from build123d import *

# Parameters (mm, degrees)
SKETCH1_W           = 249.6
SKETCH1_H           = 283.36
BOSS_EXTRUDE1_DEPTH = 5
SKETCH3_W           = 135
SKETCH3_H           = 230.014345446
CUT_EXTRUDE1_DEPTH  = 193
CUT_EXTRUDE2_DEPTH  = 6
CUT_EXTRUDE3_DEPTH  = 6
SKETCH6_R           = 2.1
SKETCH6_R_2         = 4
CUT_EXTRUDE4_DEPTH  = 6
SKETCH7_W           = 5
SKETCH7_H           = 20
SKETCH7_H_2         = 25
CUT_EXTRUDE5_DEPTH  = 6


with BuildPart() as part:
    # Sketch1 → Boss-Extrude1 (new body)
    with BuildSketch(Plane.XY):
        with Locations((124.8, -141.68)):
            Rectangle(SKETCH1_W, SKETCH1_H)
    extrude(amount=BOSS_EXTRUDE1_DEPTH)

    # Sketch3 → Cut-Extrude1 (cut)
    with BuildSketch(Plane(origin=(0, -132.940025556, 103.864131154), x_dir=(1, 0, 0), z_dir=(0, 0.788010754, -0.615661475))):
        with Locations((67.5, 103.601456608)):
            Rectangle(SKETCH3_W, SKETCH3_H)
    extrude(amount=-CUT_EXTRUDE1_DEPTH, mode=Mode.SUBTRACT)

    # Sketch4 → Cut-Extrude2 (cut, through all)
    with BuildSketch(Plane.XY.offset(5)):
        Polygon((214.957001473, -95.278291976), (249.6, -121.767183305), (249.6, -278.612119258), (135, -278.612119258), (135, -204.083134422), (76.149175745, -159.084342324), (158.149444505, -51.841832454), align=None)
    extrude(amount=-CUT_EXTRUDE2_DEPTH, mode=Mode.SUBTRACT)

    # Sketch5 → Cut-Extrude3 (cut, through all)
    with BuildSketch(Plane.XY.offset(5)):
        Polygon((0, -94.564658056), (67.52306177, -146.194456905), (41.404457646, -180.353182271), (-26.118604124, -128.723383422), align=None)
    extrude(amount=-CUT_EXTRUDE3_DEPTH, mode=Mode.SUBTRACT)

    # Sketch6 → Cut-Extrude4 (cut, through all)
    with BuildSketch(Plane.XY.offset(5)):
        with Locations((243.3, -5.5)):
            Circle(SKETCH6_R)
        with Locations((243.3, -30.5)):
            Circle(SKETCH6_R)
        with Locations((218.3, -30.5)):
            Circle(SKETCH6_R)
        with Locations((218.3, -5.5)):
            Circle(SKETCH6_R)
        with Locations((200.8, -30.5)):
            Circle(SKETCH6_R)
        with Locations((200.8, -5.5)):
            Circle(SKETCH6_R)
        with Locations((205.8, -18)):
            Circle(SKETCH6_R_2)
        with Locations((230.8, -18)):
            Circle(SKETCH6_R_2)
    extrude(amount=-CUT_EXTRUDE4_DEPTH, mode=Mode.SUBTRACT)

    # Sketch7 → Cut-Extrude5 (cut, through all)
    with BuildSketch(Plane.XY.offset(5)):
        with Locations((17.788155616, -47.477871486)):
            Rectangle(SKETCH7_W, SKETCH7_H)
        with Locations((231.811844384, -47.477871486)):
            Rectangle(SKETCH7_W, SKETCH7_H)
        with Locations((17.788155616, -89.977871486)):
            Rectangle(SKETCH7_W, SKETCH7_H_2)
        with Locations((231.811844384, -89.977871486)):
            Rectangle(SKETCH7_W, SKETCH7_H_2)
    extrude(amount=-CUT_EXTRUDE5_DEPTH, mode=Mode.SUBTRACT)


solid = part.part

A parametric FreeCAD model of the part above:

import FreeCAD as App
import Part
import Sketcher
from FreeCAD import Vector

doc = App.newDocument("Part")
body = doc.addObject("PartDesign::Body", "Body")
body.AllowCompound = True

sketch1 = body.newObject("Sketcher::SketchObject", "Sketch")
sketch1.AttachmentSupport = (doc.getObject("XY_Plane"), [""])
sketch1.MapMode = "FlatFace"
sketch1.addGeometry(Part.LineSegment(Vector(0, 0, 0), Vector(0, -283, 0)), False)
sketch1.addGeometry(Part.LineSegment(Vector(0, -283, 0), Vector(250, -283, 0)), False)
sketch1.addGeometry(Part.LineSegment(Vector(250, -283, 0), Vector(250, 0, 0)), False)
sketch1.addGeometry(Part.LineSegment(Vector(250, 0, 0), Vector(0, 0, 0)), False)
sketch1.addConstraint(Sketcher.Constraint("Coincident", 0, 2, 1, 1))
sketch1.addConstraint(Sketcher.Constraint("Coincident", 1, 2, 2, 1))
sketch1.addConstraint(Sketcher.Constraint("Coincident", 2, 2, 3, 1))
sketch1.addConstraint(Sketcher.Constraint("Coincident", 3, 2, 0, 1))
sketch1.addConstraint(Sketcher.Constraint("Vertical", 0))
sketch1.addConstraint(Sketcher.Constraint("Horizontal", 1))
sketch1.addConstraint(Sketcher.Constraint("Vertical", 2))
sketch1.addConstraint(Sketcher.Constraint("Horizontal", 3))
sketch1.addConstraint(Sketcher.Constraint("Coincident", 3, 2, -1, 1))
sketch1.addConstraint(Sketcher.Constraint("DistanceX", 1, 1, 1, 2, 249.6))
sketch1.addConstraint(Sketcher.Constraint("DistanceY", 0, 2, 0, 1, 283.36))
pad1 = body.newObject("PartDesign::Pad", "Pad")
pad1.Profile = sketch1
pad1.Length = 5

sketch2 = body.newObject("Sketcher::SketchObject", "Sketch001")
sketch2.Placement = App.Placement(Vector(0, -132.940026, 103.864131), App.Rotation(Vector(1, 0, 0), Vector(0, -0.615661475, -0.788010754), Vector(0, 0.788010754, -0.615661475), "ZXY"))
sketch2.addGeometry(Part.LineSegment(Vector(0, 219, 0), Vector(0, -11, 0)), False)
sketch2.addGeometry(Part.LineSegment(Vector(0, -11, 0), Vector(135, -11, 0)), False)
sketch2.addGeometry(Part.LineSegment(Vector(135, -11, 0), Vector(135, 219, 0)), False)
sketch2.addGeometry(Part.LineSegment(Vector(135, 219, 0), Vector(0, 219, 0)), False)
sketch2.addConstraint(Sketcher.Constraint("Coincident", 0, 2, 1, 1))
sketch2.addConstraint(Sketcher.Constraint("Coincident", 1, 2, 2, 1))
sketch2.addConstraint(Sketcher.Constraint("Coincident", 2, 2, 3, 1))
sketch2.addConstraint(Sketcher.Constraint("Coincident", 3, 2, 0, 1))
sketch2.addConstraint(Sketcher.Constraint("Vertical", 0))
sketch2.addConstraint(Sketcher.Constraint("Horizontal", 1))
sketch2.addConstraint(Sketcher.Constraint("Vertical", 2))
sketch2.addConstraint(Sketcher.Constraint("Horizontal", 3))
sketch2.addConstraint(Sketcher.Constraint("PointOnObject", 0, 2, -2))
sketch2.addConstraint(Sketcher.Constraint("DistanceX", 1, 1, 1, 2, 135.0))
sketch2.addConstraint(Sketcher.Constraint("DistanceY", 0, 2, 0, 1, 230.014345))
sketch2.addConstraint(Sketcher.Constraint("DistanceY", -1, 1, 2, 2, 218.608629))
pocket1 = body.newObject("PartDesign::Pocket", "Pocket")
pocket1.Profile = sketch2
pocket1.Length = 193

sketch3 = body.newObject("Sketcher::SketchObject", "Sketch002")
sketch3.AttachmentSupport = (doc.getObject("XY_Plane"), [""])
sketch3.MapMode = "FlatFace"
sketch3.AttachmentOffset = App.Placement(Vector(0, 0, 5), App.Rotation())
sketch3.addGeometry(Part.LineSegment(Vector(250, -122, 0), Vector(215, -95, 0)), False)
sketch3.addGeometry(Part.LineSegment(Vector(215, -95, 0), Vector(158, -52, 0)), False)
sketch3.addGeometry(Part.LineSegment(Vector(158, -52, 0), Vector(76, -159, 0)), False)
sketch3.addGeometry(Part.LineSegment(Vector(76, -159, 0), Vector(135, -204, 0)), False)
sketch3.addGeometry(Part.LineSegment(Vector(135, -204, 0), Vector(135, -279, 0)), False)
sketch3.addGeometry(Part.LineSegment(Vector(135, -279, 0), Vector(250, -279, 0)), False)
sketch3.addGeometry(Part.LineSegment(Vector(250, -279, 0), Vector(250, -122, 0)), False)
sketch3.addConstraint(Sketcher.Constraint("Coincident", 0, 2, 1, 1))
sketch3.addConstraint(Sketcher.Constraint("Coincident", 1, 2, 2, 1))
sketch3.addConstraint(Sketcher.Constraint("Coincident", 2, 2, 3, 1))
sketch3.addConstraint(Sketcher.Constraint("Coincident", 3, 2, 4, 1))
sketch3.addConstraint(Sketcher.Constraint("Coincident", 4, 2, 5, 1))
sketch3.addConstraint(Sketcher.Constraint("Coincident", 5, 2, 6, 1))
sketch3.addConstraint(Sketcher.Constraint("Coincident", 6, 2, 0, 1))
sketch3.addConstraint(Sketcher.Constraint("Vertical", 4))
sketch3.addConstraint(Sketcher.Constraint("Horizontal", 5))
sketch3.addConstraint(Sketcher.Constraint("Vertical", 6))
sketch3.addConstraint(Sketcher.Constraint("Parallel", 0, 1))
sketch3.addConstraint(Sketcher.Constraint("Perpendicular", 1, 2))
sketch3.addConstraint(Sketcher.Constraint("Perpendicular", 2, 3))
sketch3.addConstraint(Sketcher.Constraint("Distance", 2, 135.0))
sketch3.addConstraint(Sketcher.Constraint("DistanceX", 5, 1, 5, 2, 114.6))
sketch3.addConstraint(Sketcher.Constraint("DistanceX", -1, 1, 3, 2, 135.0))
sketch3.addConstraint(Sketcher.Constraint("DistanceX", -1, 1, 0, 2, 214.957001))
sketch3.addConstraint(Sketcher.Constraint("DistanceY", 3, 2, 1, 2, 152.241302))
sketch3.addConstraint(Sketcher.Constraint("Distance", 1, 71.51101))
sketch3.addConstraint(Sketcher.Constraint("DistanceY", 4, 2, 4, 1, 74.528985))
sketch3.addConstraint(Sketcher.Constraint("DistanceY", 0, 2, -1, 1, 95.278292))
pocket2 = body.newObject("PartDesign::Pocket", "Pocket001")
pocket2.Profile = sketch3
pocket2.Type = "ThroughAll"

sketch4 = body.newObject("Sketcher::SketchObject", "Sketch003")
sketch4.AttachmentSupport = (doc.getObject("XY_Plane"), [""])
sketch4.MapMode = "FlatFace"
sketch4.AttachmentOffset = App.Placement(Vector(0, 0, 5), App.Rotation())
sketch4.addGeometry(Part.LineSegment(Vector(68, -146, 0), Vector(0, -95, 0)), False)
sketch4.addGeometry(Part.LineSegment(Vector(0, -95, 0), Vector(-26, -129, 0)), False)
sketch4.addGeometry(Part.LineSegment(Vector(-26, -129, 0), Vector(41, -180, 0)), False)
sketch4.addGeometry(Part.LineSegment(Vector(41, -180, 0), Vector(68, -146, 0)), False)
sketch4.addConstraint(Sketcher.Constraint("Coincident", 0, 2, 1, 1))
sketch4.addConstraint(Sketcher.Constraint("Coincident", 1, 2, 2, 1))
sketch4.addConstraint(Sketcher.Constraint("Coincident", 2, 2, 3, 1))
sketch4.addConstraint(Sketcher.Constraint("Coincident", 3, 2, 0, 1))
sketch4.addConstraint(Sketcher.Constraint("PointOnObject", 0, 2, -2))
sketch4.addConstraint(Sketcher.Constraint("Perpendicular", 0, 1))
sketch4.addConstraint(Sketcher.Constraint("Perpendicular", 1, 2))
sketch4.addConstraint(Sketcher.Constraint("Perpendicular", 2, 3))
sketch4.addConstraint(Sketcher.Constraint("Distance", 0, 85.0))
sketch4.addConstraint(Sketcher.Constraint("Distance", 1, 43.0))
sketch4.addConstraint(Sketcher.Constraint("DistanceY", 2, 2, 1, 2, 51.629799))
sketch4.addConstraint(Sketcher.Constraint("DistanceY", 0, 2, -1, 1, 94.564658))
pocket3 = body.newObject("PartDesign::Pocket", "Pocket002")
pocket3.Profile = sketch4
pocket3.Type = "ThroughAll"

sketch5 = body.newObject("Sketcher::SketchObject", "Sketch004")
sketch5.AttachmentSupport = (doc.getObject("XY_Plane"), [""])
sketch5.MapMode = "FlatFace"
sketch5.AttachmentOffset = App.Placement(Vector(0, 0, 5), App.Rotation())
sketch5.addGeometry(Part.Circle(Vector(243.3, -5.5, 0), Vector(0, 0, 1), 2.1), False)
sketch5.addGeometry(Part.Circle(Vector(243.3, -30.5, 0), Vector(0, 0, 1), 2.1), False)
sketch5.addGeometry(Part.Circle(Vector(218.3, -30.5, 0), Vector(0, 0, 1), 2.1), False)
sketch5.addGeometry(Part.Circle(Vector(218.3, -5.5, 0), Vector(0, 0, 1), 2.1), False)
sketch5.addGeometry(Part.Circle(Vector(200.8, -30.5, 0), Vector(0, 0, 1), 2.1), False)
sketch5.addGeometry(Part.Circle(Vector(200.8, -5.5, 0), Vector(0, 0, 1), 2.1), False)
sketch5.addGeometry(Part.Circle(Vector(205.8, -18, 0), Vector(0, 0, 1), 4), False)
sketch5.addGeometry(Part.Circle(Vector(230.8, -18, 0), Vector(0, 0, 1), 4), False)
sketch5.addConstraint(Sketcher.Constraint("Equal", 0, 1))
sketch5.addConstraint(Sketcher.Constraint("Equal", 1, 2))
sketch5.addConstraint(Sketcher.Constraint("Equal", 2, 3))
sketch5.addConstraint(Sketcher.Constraint("Equal", 3, 4))
sketch5.addConstraint(Sketcher.Constraint("Equal", 4, 5))
sketch5.addConstraint(Sketcher.Constraint("Equal", 6, 7))
sketch5.addConstraint(Sketcher.Constraint("Horizontal", 1, 3, 2, 3))
sketch5.addConstraint(Sketcher.Constraint("Horizontal", 0, 3, 3, 3))
sketch5.addConstraint(Sketcher.Constraint("Horizontal", 2, 3, 4, 3))
sketch5.addConstraint(Sketcher.Constraint("Horizontal", 3, 3, 5, 3))
sketch5.addConstraint(Sketcher.Constraint("Horizontal", 6, 3, 7, 3))
sketch5.addConstraint(Sketcher.Constraint("Vertical", 0, 3, 1, 3))
sketch5.addConstraint(Sketcher.Constraint("Vertical", 2, 3, 3, 3))
sketch5.addConstraint(Sketcher.Constraint("Vertical", 4, 3, 5, 3))
sketch5.addConstraint(Sketcher.Constraint("Diameter", 6, 8.0))
sketch5.addConstraint(Sketcher.Constraint("Diameter", 0, 4.2))
sketch5.addConstraint(Sketcher.Constraint("DistanceY", 6, 3, -1, 1, 18.0))
sketch5.addConstraint(Sketcher.Constraint("DistanceY", 1, 3, 0, 3, 25.0))
sketch5.addConstraint(Sketcher.Constraint("DistanceX", 2, 3, 1, 3, 25.0))
sketch5.addConstraint(Sketcher.Constraint("DistanceX", 4, 3, 6, 3, 5.0))
sketch5.addConstraint(Sketcher.Constraint("DistanceX", 6, 3, 7, 3, 25.0))
sketch5.addConstraint(Sketcher.Constraint("DistanceX", -1, 1, 0, 3, 243.3))
sketch5.addConstraint(Sketcher.Constraint("DistanceY", 0, 3, -1, 1, 5.5))
sketch5.addConstraint(Sketcher.Constraint("DistanceX", -1, 1, 4, 3, 200.8))
pocket4 = body.newObject("PartDesign::Pocket", "Pocket003")
pocket4.Profile = sketch5
pocket4.Type = "ThroughAll"

sketch6 = body.newObject("Sketcher::SketchObject", "Sketch005")
sketch6.AttachmentSupport = (doc.getObject("XY_Plane"), [""])
sketch6.MapMode = "FlatFace"
sketch6.AttachmentOffset = App.Placement(Vector(0, 0, 5), App.Rotation())
sketch6.addGeometry(Part.LineSegment(Vector(15, -37, 0), Vector(15, -57, 0)), False)
sketch6.addGeometry(Part.LineSegment(Vector(15, -57, 0), Vector(20, -57, 0)), False)
sketch6.addGeometry(Part.LineSegment(Vector(20, -57, 0), Vector(20, -37, 0)), False)
sketch6.addGeometry(Part.LineSegment(Vector(20, -37, 0), Vector(15, -37, 0)), False)
sketch6.addGeometry(Part.LineSegment(Vector(229, -37, 0), Vector(229, -57, 0)), False)
sketch6.addGeometry(Part.LineSegment(Vector(229, -57, 0), Vector(234, -57, 0)), False)
sketch6.addGeometry(Part.LineSegment(Vector(234, -57, 0), Vector(234, -37, 0)), False)
sketch6.addGeometry(Part.LineSegment(Vector(234, -37, 0), Vector(229, -37, 0)), False)
sketch6.addGeometry(Part.LineSegment(Vector(15, -77, 0), Vector(15, -102, 0)), False)
sketch6.addGeometry(Part.LineSegment(Vector(15, -102, 0), Vector(20, -102, 0)), False)
sketch6.addGeometry(Part.LineSegment(Vector(20, -102, 0), Vector(20, -77, 0)), False)
sketch6.addGeometry(Part.LineSegment(Vector(20, -77, 0), Vector(15, -77, 0)), False)
sketch6.addGeometry(Part.LineSegment(Vector(229, -77, 0), Vector(229, -102, 0)), False)
sketch6.addGeometry(Part.LineSegment(Vector(229, -102, 0), Vector(234, -102, 0)), False)
sketch6.addGeometry(Part.LineSegment(Vector(234, -102, 0), Vector(234, -77, 0)), False)
sketch6.addGeometry(Part.LineSegment(Vector(234, -77, 0), Vector(229, -77, 0)), False)
sketch6.addConstraint(Sketcher.Constraint("Coincident", 0, 2, 1, 1))
sketch6.addConstraint(Sketcher.Constraint("Coincident", 1, 2, 2, 1))
sketch6.addConstraint(Sketcher.Constraint("Coincident", 2, 2, 3, 1))
sketch6.addConstraint(Sketcher.Constraint("Coincident", 3, 2, 0, 1))
sketch6.addConstraint(Sketcher.Constraint("Coincident", 4, 2, 5, 1))
sketch6.addConstraint(Sketcher.Constraint("Coincident", 5, 2, 6, 1))
sketch6.addConstraint(Sketcher.Constraint("Coincident", 6, 2, 7, 1))
sketch6.addConstraint(Sketcher.Constraint("Coincident", 7, 2, 4, 1))
sketch6.addConstraint(Sketcher.Constraint("Coincident", 8, 2, 9, 1))
sketch6.addConstraint(Sketcher.Constraint("Coincident", 9, 2, 10, 1))
sketch6.addConstraint(Sketcher.Constraint("Coincident", 10, 2, 11, 1))
sketch6.addConstraint(Sketcher.Constraint("Coincident", 11, 2, 8, 1))
sketch6.addConstraint(Sketcher.Constraint("Coincident", 12, 2, 13, 1))
sketch6.addConstraint(Sketcher.Constraint("Coincident", 13, 2, 14, 1))
sketch6.addConstraint(Sketcher.Constraint("Coincident", 14, 2, 15, 1))
sketch6.addConstraint(Sketcher.Constraint("Coincident", 15, 2, 12, 1))
sketch6.addConstraint(Sketcher.Constraint("Vertical", 0))
sketch6.addConstraint(Sketcher.Constraint("Horizontal", 1))
sketch6.addConstraint(Sketcher.Constraint("Vertical", 2))
sketch6.addConstraint(Sketcher.Constraint("Horizontal", 3))
sketch6.addConstraint(Sketcher.Constraint("Vertical", 4))
sketch6.addConstraint(Sketcher.Constraint("Horizontal", 5))
sketch6.addConstraint(Sketcher.Constraint("Vertical", 6))
sketch6.addConstraint(Sketcher.Constraint("Horizontal", 7))
sketch6.addConstraint(Sketcher.Constraint("Vertical", 8))
sketch6.addConstraint(Sketcher.Constraint("Horizontal", 9))
sketch6.addConstraint(Sketcher.Constraint("Vertical", 10))
sketch6.addConstraint(Sketcher.Constraint("Horizontal", 11))
sketch6.addConstraint(Sketcher.Constraint("Vertical", 12))
sketch6.addConstraint(Sketcher.Constraint("Horizontal", 13))
sketch6.addConstraint(Sketcher.Constraint("Vertical", 14))
sketch6.addConstraint(Sketcher.Constraint("Horizontal", 15))
sketch6.addConstraint(Sketcher.Constraint("Horizontal", 1, 2, 4, 2))
sketch6.addConstraint(Sketcher.Constraint("Horizontal", 3, 2, 6, 2))
sketch6.addConstraint(Sketcher.Constraint("Horizontal", 9, 2, 12, 2))
sketch6.addConstraint(Sketcher.Constraint("Horizontal", 11, 2, 14, 2))
sketch6.addConstraint(Sketcher.Constraint("Vertical", 3, 2, 8, 2))
sketch6.addConstraint(Sketcher.Constraint("Vertical", 2, 2, 9, 2))
sketch6.addConstraint(Sketcher.Constraint("Vertical", 7, 2, 12, 2))
sketch6.addConstraint(Sketcher.Constraint("Vertical", 6, 2, 13, 2))
sketch6.addConstraint(Sketcher.Constraint("Equal", 3, 5))
sketch6.addConstraint(Sketcher.Constraint("DistanceX", 1, 1, 1, 2, 5.0))
sketch6.addConstraint(Sketcher.Constraint("DistanceY", 0, 2, 0, 1, 20.0))
sketch6.addConstraint(Sketcher.Constraint("DistanceY", 8, 2, 8, 1, 25.0))
sketch6.addConstraint(Sketcher.Constraint("DistanceY", 8, 2, 0, 2, 45.0))
sketch6.addConstraint(Sketcher.Constraint("DistanceY", 0, 2, -1, 1, 57.477871))
sketch6.addConstraint(Sketcher.Constraint("DistanceX", 1, 2, 4, 2, 209.023689))
sketch6.addConstraint(Sketcher.Constraint("DistanceX", -1, 1, 0, 2, 15.288156))
pocket5 = body.newObject("PartDesign::Pocket", "Pocket004")
pocket5.Profile = sketch6
pocket5.Type = "ThroughAll"

doc.recompute()
